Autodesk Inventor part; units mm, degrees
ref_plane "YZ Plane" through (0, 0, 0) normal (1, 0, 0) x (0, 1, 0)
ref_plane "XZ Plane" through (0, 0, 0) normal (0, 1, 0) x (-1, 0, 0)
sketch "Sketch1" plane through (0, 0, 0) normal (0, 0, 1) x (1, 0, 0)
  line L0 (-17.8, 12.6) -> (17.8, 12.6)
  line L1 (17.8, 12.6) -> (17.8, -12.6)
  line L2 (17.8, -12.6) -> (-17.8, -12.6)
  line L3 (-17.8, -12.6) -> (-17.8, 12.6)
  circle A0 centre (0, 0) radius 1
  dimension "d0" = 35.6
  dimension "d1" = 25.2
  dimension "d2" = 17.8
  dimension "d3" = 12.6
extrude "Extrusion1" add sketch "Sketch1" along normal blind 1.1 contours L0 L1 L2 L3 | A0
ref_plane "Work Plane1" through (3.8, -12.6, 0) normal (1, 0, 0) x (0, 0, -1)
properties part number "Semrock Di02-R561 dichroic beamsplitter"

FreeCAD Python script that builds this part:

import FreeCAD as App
import Part
import Sketcher
from FreeCAD import Vector
Q = App.Units.Quantity

doc = App.newDocument("Part")
body = doc.addObject("PartDesign::Body", "Body")

# Sketch on XY plane
sketch1 = body.newObject("Sketcher::SketchObject", "Sketch")
sketch1.AttachmentSupport = (doc.getObject("XY_Plane"), [""])
sketch1.MapMode = "FlatFace"
sketch1.addGeometry([
    Part.LineSegment(Vector(18, 13, 0), Vector(-18, 13, 0)),
    Part.LineSegment(Vector(-18, 13, 0), Vector(-18, -13, 0)),
    Part.LineSegment(Vector(-18, -13, 0), Vector(18, -13, 0)),
    Part.LineSegment(Vector(18, -13, 0), Vector(18, 13, 0)),
], False)
sketch1.addConstraint([
    Sketcher.Constraint("Coincident", 0, 2, 1, 1),
    Sketcher.Constraint("Coincident", 1, 2, 2, 1),
    Sketcher.Constraint("Coincident", 2, 2, 3, 1),
    Sketcher.Constraint("Coincident", 3, 2, 0, 1),
    Sketcher.Constraint("Horizontal", 0),
    Sketcher.Constraint("Vertical", 1),
    Sketcher.Constraint("Horizontal", 2),
    Sketcher.Constraint("Vertical", 3),
    Sketcher.Constraint("Symmetric", 0, 2, 2, 2, -1, 1),
    Sketcher.Constraint("DistanceX", 0, 2, 0, 1, Q("35.6 mm")),
    Sketcher.Constraint("DistanceY", 1, 2, 1, 1, Q("25.2 mm")),
])
pad1 = body.newObject("PartDesign::Pad", "Pad")
pad1.Profile = sketch1
pad1.Length = 1.1

doc.recompute()
